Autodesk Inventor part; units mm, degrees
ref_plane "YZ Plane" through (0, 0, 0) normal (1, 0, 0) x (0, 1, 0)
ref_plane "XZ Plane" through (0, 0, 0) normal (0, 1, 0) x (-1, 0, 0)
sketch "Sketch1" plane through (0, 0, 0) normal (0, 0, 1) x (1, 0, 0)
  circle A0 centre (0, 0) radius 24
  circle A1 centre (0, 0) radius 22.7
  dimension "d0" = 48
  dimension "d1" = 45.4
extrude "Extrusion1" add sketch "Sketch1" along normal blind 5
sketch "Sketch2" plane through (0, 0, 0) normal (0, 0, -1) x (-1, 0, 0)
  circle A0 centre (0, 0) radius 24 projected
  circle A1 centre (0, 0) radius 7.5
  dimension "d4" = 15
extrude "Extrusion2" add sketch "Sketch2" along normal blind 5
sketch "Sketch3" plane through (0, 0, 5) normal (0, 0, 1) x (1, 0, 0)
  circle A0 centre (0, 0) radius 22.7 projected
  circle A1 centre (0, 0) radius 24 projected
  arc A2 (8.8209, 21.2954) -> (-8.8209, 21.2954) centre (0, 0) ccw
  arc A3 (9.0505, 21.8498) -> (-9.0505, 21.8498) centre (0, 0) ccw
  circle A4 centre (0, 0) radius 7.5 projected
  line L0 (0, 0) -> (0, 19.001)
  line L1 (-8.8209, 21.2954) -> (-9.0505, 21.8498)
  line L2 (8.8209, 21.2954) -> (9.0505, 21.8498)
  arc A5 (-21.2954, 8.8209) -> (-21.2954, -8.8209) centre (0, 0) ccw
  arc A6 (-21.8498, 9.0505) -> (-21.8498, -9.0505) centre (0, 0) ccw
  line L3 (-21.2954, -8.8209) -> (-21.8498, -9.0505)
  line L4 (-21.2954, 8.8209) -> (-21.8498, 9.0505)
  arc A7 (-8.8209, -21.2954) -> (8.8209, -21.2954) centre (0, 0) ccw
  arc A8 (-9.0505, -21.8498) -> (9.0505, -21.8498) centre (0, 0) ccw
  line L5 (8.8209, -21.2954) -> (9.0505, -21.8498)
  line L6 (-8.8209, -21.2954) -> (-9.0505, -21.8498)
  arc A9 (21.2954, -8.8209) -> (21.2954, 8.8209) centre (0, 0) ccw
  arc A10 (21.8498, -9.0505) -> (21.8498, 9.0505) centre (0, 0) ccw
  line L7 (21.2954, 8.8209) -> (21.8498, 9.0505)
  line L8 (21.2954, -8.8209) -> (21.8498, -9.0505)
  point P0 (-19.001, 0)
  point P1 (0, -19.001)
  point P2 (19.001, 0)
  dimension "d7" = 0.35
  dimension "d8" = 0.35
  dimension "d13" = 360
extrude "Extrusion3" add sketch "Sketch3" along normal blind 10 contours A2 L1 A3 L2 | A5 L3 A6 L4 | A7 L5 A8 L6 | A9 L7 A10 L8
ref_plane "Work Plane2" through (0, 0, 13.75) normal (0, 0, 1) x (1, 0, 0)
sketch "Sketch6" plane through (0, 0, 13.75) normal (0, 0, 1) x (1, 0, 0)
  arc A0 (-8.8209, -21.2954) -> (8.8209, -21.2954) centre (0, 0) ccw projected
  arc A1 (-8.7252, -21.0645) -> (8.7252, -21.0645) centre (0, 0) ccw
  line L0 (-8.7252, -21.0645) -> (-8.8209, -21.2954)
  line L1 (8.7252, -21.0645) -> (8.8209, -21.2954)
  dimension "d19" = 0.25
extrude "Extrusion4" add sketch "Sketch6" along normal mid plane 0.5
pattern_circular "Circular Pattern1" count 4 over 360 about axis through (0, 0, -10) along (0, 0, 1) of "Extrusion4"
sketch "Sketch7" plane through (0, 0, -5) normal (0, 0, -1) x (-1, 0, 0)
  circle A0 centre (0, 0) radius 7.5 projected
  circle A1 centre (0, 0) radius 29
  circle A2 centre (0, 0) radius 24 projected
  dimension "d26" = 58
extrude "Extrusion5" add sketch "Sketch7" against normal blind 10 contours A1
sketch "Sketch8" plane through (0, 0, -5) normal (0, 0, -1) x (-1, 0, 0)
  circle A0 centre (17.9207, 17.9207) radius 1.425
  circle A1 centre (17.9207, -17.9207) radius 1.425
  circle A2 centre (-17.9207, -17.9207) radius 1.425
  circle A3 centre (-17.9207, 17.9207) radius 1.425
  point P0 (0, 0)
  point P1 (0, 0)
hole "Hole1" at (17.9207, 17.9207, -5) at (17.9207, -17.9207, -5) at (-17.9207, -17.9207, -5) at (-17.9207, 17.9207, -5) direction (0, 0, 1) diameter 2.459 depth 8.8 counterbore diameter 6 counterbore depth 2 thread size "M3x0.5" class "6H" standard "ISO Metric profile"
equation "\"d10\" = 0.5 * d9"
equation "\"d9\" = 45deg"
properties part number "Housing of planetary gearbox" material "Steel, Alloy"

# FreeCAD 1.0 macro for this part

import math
import FreeCAD as App
import Part
import Sketcher

V = App.Vector

doc = App.newDocument("Part")
body = doc.addObject("PartDesign::Body", "Body")

# Sketch on XY plane
sketch1 = doc.addObject("Sketcher::SketchObject", "Sketch")
body.addObject(sketch1)
sketch1.AttachmentSupport = (doc.XY_Plane, [""])
sketch1.MapMode = "FlatFace"
sketch1.addGeometry([
    Part.Circle(V(0, 0, 0), V(0, 0, 1), 24),
    Part.Circle(V(0, 0, 0), V(0, 0, 1), 23),
], False)
sketch1.addConstraint([
    Sketcher.Constraint("Coincident", 0, 3, -1, 1),
    Sketcher.Constraint("Coincident", 1, 3, -1, 1),
    Sketcher.Constraint("Diameter", 0, 48.0),
    Sketcher.Constraint("Diameter", 1, 45.4),
])
pad1 = doc.addObject("PartDesign::Pad", "Pad")
body.addObject(pad1)
pad1.Profile = sketch1
pad1.Length = 5

# Sketch on XY plane
sketch2 = doc.addObject("Sketcher::SketchObject", "Sketch001")
body.addObject(sketch2)
sketch2.AttachmentSupport = (doc.XY_Plane, [""])
sketch2.MapMode = "FlatFace"
sketch2.addGeometry([
    Part.Circle(V(0, 0, 0), V(0, 0, 1), 24),
    Part.Circle(V(0, 0, 0), V(0, 0, 1), 8),
], False)
sketch2.addConstraint([
    Sketcher.Constraint("Coincident", 0, 3, -1, 1),
    Sketcher.Constraint("Coincident", 1, 3, -1, 1),
    Sketcher.Constraint("Diameter", 1, 15.0),
    Sketcher.Constraint("Diameter", 0, 48.0),
])
pad2 = doc.addObject("PartDesign::Pad", "Pad001")
body.addObject(pad2)
pad2.Profile = sketch2
pad2.Length = 5
pad2.Reversed = True

# Sketch on XY plane
sketch3 = doc.addObject("Sketcher::SketchObject", "Sketch002")
body.addObject(sketch3)
sketch3.AttachmentSupport = (doc.XY_Plane, [""])
sketch3.MapMode = "FlatFace"
sketch3.AttachmentOffset = App.Placement(V(0, 0, 5), App.Rotation())
sketch3.addGeometry([
    Part.ArcOfCircle(Part.Circle(V(0, 0, 0), V(0, 0, 1), 23), math.radians(67), math.radians(113)),  # 0
    Part.LineSegment(V(8.8, 21.3, 0), V(9.1, 21.8, 0)),  # 1
    Part.ArcOfCircle(Part.Circle(V(0, 0, 0), V(0, 0, 1), 23.7), math.radians(67), math.radians(113)),  # 2
    Part.LineSegment(V(-9.1, 21.8, 0), V(-8.8, 21.3, 0)),  # 3
    Part.ArcOfCircle(Part.Circle(V(0, 0, 0), V(0, 0, 1), 23), math.radians(157), math.radians(203)),  # 4
    Part.LineSegment(V(-21.3, 8.8, 0), V(-21.8, 9.1, 0)),  # 5
    Part.ArcOfCircle(Part.Circle(V(0, 0, 0), V(0, 0, 1), 23.7), math.radians(157), math.radians(203)),  # 6
    Part.LineSegment(V(-21.8, -9.1, 0), V(-21.3, -8.8, 0)),  # 7
    Part.ArcOfCircle(Part.Circle(V(0, 0, 0), V(0, 0, 1), 23), math.radians(-113), math.radians(-67)),  # 8
    Part.LineSegment(V(-8.8, -21.3, 0), V(-9.1, -21.8, 0)),  # 9
    Part.ArcOfCircle(Part.Circle(V(0, 0, 0), V(0, 0, 1), 23.7), math.radians(-113), math.radians(-67)),  # 10
    Part.LineSegment(V(9.1, -21.8, 0), V(8.8, -21.3, 0)),  # 11
    Part.ArcOfCircle(Part.Circle(V(0, 0, 0), V(0, 0, 1), 23), math.radians(-23), math.radians(23)),  # 12
    Part.LineSegment(V(21.3, -8.8, 0), V(21.8, -9.1, 0)),  # 13
    Part.ArcOfCircle(Part.Circle(V(0, 0, 0), V(0, 0, 1), 23.7), math.radians(-23), math.radians(23)),  # 14
    Part.LineSegment(V(21.8, 9.1, 0), V(21.3, 8.8, 0)),  # 15
], False)
sketch3.addConstraint([
    Sketcher.Constraint("Coincident", 0, 1, 1, 1),
    Sketcher.Constraint("Coincident", 1, 2, 2, 1),
    Sketcher.Constraint("Coincident", 2, 2, 3, 1),
    Sketcher.Constraint("Coincident", 3, 2, 0, 2),
    Sketcher.Constraint("Coincident", 4, 1, 5, 1),
    Sketcher.Constraint("Coincident", 5, 2, 6, 1),
    Sketcher.Constraint("Coincident", 6, 2, 7, 1),
    Sketcher.Constraint("Coincident", 7, 2, 4, 2),
    Sketcher.Constraint("Coincident", 8, 1, 9, 1),
    Sketcher.Constraint("Coincident", 9, 2, 10, 1),
    Sketcher.Constraint("Coincident", 10, 2, 11, 1),
    Sketcher.Constraint("Coincident", 11, 2, 8, 2),
    Sketcher.Constraint("Coincident", 12, 1, 13, 1),
    Sketcher.Constraint("Coincident", 13, 2, 14, 1),
    Sketcher.Constraint("Coincident", 14, 2, 15, 1),
    Sketcher.Constraint("Coincident", 15, 2, 12, 2),
    Sketcher.Constraint("Coincident", 0, 3, -1, 1),
    Sketcher.Constraint("Coincident", 2, 3, -1, 1),
    Sketcher.Constraint("Coincident", 4, 3, -1, 1),
    Sketcher.Constraint("Coincident", 6, 3, -1, 1),
    Sketcher.Constraint("Coincident", 8, 3, -1, 1),
    Sketcher.Constraint("Coincident", 10, 3, -1, 1),
    Sketcher.Constraint("Coincident", 12, 3, -1, 1),
    Sketcher.Constraint("Coincident", 14, 3, -1, 1),
    Sketcher.Constraint("Equal", 0, 4),
    Sketcher.Constraint("Equal", 2, 6),
    Sketcher.Constraint("Equal", 4, 8),
    Sketcher.Constraint("Equal", 6, 10),
    Sketcher.Constraint("Equal", 8, 12),
    Sketcher.Constraint("Equal", 10, 14),
    Sketcher.Constraint("Perpendicular", 1, 5),
    Sketcher.Constraint("Perpendicular", 3, 7),
    Sketcher.Constraint("Perpendicular", 5, 9),
    Sketcher.Constraint("Perpendicular", 7, 11),
    Sketcher.Constraint("Perpendicular", 9, 13),
    Sketcher.Constraint("Perpendicular", 11, 15),
    Sketcher.Constraint("Horizontal", 1, 2, 2, 2),
    Sketcher.Constraint("Horizontal", 0, 1, 3, 2),
    Sketcher.Constraint("Horizontal", 9, 2, 10, 2),
    Sketcher.Constraint("Horizontal", 7, 2, 12, 1),
    Sketcher.Constraint("Horizontal", 5, 2, 14, 2),
    Sketcher.Constraint("Vertical", 5, 2, 6, 2),
    Sketcher.Constraint("Vertical", 3, 2, 8, 1),
    Sketcher.Constraint("Radius", 0, 23.05),
    Sketcher.Constraint("Radius", 2, 23.65),
    Sketcher.Constraint("DistanceX", -1, 1, 0, 1, 8.821),
    Sketcher.Constraint("DistanceY", -1, 1, 4, 1, 8.821),
    Sketcher.Constraint("DistanceX", 2, 2, 1, 2, 18.101),
])
pad3 = doc.addObject("PartDesign::Pad", "Pad002")
body.addObject(pad3)
pad3.Profile = sketch3
pad3.Length = 10

# Sketch on XY plane
sketch4 = doc.addObject("Sketcher::SketchObject", "Sketch003")
body.addObject(sketch4)
sketch4.AttachmentSupport = (doc.XY_Plane, [""])
sketch4.MapMode = "FlatFace"
sketch4.AttachmentOffset = App.Placement(V(0, 0, 13.75), App.Rotation())
sketch4.addGeometry([
    Part.LineSegment(V(-8.73, -21.06, 0), V(-8.82, -21.3, 0)),
    Part.ArcOfCircle(Part.Circle(V(0, 0, 0), V(0, 0, 1), 23.05), math.radians(-113), math.radians(-67)),
    Part.LineSegment(V(8.82, -21.3, 0), V(8.73, -21.06, 0)),
    Part.ArcOfCircle(Part.Circle(V(0, 0, 0), V(0, 0, 1), 22.8), math.radians(-112), math.radians(-68)),
], False)
sketch4.addConstraint([
    Sketcher.Constraint("Coincident", 0, 2, 1, 1),
    Sketcher.Constraint("Coincident", 1, 2, 2, 1),
    Sketcher.Constraint("Coincident", 2, 2, 3, 2),
    Sketcher.Constraint("Coincident", 3, 1, 0, 1),
    Sketcher.Constraint("Coincident", 1, 3, -1, 1),
    Sketcher.Constraint("Coincident", 3, 3, -1, 1),
    Sketcher.Constraint("Horizontal", 0, 2, 1, 2),
    Sketcher.Constraint("Horizontal", 2, 2, 3, 1),
    Sketcher.Constraint("Radius", 3, 22.8),
    Sketcher.Constraint("Distance", 0, 0.25),
    Sketcher.Constraint("DistanceX", 0, 2, -1, 1, 8.821),
    Sketcher.Constraint("DistanceY", 1, 2, 2, 2, 0.231),
])
pad4 = doc.addObject("PartDesign::Pad", "Pad003")
body.addObject(pad4)
pad4.Profile = sketch4
pad4.Length = 0.5
pad4.Midplane = True
doc.recompute()

polarpattern = doc.addObject("PartDesign::PolarPattern", "PolarPattern")
body.addObject(polarpattern)
polarpattern.Originals = [pad4]
polarpattern.Axis = (doc.Z_Axis, [""])
polarpattern.Angle = 360
polarpattern.Occurrences = 4
body.Tip = polarpattern

# Sketch on XY plane
sketch5 = doc.addObject("Sketcher::SketchObject", "Sketch004")
body.addObject(sketch5)
sketch5.AttachmentSupport = (doc.XY_Plane, [""])
sketch5.MapMode = "FlatFace"
sketch5.AttachmentOffset = App.Placement(V(0, 0, -5), App.Rotation())
sketch5.addGeometry([
    Part.Circle(V(0, 0, 0), V(0, 0, 1), 29),
    Part.Circle(V(0, 0, 0), V(0, 0, 1), 24),
], False)
sketch5.addConstraint([
    Sketcher.Constraint("Coincident", 0, 3, -1, 1),
    Sketcher.Constraint("Coincident", 1, 3, -1, 1),
    Sketcher.Constraint("Diameter", 0, 58.0),
    Sketcher.Constraint("Diameter", 1, 48.0),
])
pad5 = doc.addObject("PartDesign::Pad", "Pad004")
body.addObject(pad5)
pad5.Profile = sketch5
pad5.Length = 10

# Sketch on XY plane
sketch6 = doc.addObject("Sketcher::SketchObject", "Sketch005")
body.addObject(sketch6)
sketch6.AttachmentSupport = (doc.XY_Plane, [""])
sketch6.MapMode = "FlatFace"
sketch6.AttachmentOffset = App.Placement(V(0, 0, -5), App.Rotation())
sketch6.addGeometry([
    Part.Circle(V(17.9, 17.9, 0), V(0, 0, 1), 1.2),
    Part.Circle(V(17.9, -17.9, 0), V(0, 0, 1), 1.2),
    Part.Circle(V(-17.9, -17.9, 0), V(0, 0, 1), 1.2),
    Part.Circle(V(-17.9, 17.9, 0), V(0, 0, 1), 1.2),
], False)
sketch6.addConstraint([
    Sketcher.Constraint("Equal", 0, 1),
    Sketcher.Constraint("Equal", 1, 2),
    Sketcher.Constraint("Equal", 2, 3),
    Sketcher.Constraint("Symmetric", 0, 3, 2, 3, -1, 1),
    Sketcher.Constraint("Symmetric", 1, 3, 3, 3, -1, 1),
    Sketcher.Constraint("Symmetric", 1, 3, 2, 3, -2),
    Sketcher.Constraint("Diameter", 0, 2.459),
    Sketcher.Constraint("DistanceX", -1, 1, 0, 3, 17.9207),
    Sketcher.Constraint("DistanceY", -1, 1, 0, 3, 17.9207),
])
doc.recompute()
hole = doc.addObject("PartDesign::Hole", "Hole")
body.addObject(hole)
hole.Profile = sketch6
hole.ThreadType = "None"
hole.Diameter = 2.459
hole.DepthType = "Dimension"
hole.Depth = 8.8
hole.DrillPoint = "Flat"
hole.HoleCutType = "Counterbore"
hole.HoleCutDiameter = 6
hole.HoleCutDepth = 2
hole.Reversed = True

doc.recompute()
